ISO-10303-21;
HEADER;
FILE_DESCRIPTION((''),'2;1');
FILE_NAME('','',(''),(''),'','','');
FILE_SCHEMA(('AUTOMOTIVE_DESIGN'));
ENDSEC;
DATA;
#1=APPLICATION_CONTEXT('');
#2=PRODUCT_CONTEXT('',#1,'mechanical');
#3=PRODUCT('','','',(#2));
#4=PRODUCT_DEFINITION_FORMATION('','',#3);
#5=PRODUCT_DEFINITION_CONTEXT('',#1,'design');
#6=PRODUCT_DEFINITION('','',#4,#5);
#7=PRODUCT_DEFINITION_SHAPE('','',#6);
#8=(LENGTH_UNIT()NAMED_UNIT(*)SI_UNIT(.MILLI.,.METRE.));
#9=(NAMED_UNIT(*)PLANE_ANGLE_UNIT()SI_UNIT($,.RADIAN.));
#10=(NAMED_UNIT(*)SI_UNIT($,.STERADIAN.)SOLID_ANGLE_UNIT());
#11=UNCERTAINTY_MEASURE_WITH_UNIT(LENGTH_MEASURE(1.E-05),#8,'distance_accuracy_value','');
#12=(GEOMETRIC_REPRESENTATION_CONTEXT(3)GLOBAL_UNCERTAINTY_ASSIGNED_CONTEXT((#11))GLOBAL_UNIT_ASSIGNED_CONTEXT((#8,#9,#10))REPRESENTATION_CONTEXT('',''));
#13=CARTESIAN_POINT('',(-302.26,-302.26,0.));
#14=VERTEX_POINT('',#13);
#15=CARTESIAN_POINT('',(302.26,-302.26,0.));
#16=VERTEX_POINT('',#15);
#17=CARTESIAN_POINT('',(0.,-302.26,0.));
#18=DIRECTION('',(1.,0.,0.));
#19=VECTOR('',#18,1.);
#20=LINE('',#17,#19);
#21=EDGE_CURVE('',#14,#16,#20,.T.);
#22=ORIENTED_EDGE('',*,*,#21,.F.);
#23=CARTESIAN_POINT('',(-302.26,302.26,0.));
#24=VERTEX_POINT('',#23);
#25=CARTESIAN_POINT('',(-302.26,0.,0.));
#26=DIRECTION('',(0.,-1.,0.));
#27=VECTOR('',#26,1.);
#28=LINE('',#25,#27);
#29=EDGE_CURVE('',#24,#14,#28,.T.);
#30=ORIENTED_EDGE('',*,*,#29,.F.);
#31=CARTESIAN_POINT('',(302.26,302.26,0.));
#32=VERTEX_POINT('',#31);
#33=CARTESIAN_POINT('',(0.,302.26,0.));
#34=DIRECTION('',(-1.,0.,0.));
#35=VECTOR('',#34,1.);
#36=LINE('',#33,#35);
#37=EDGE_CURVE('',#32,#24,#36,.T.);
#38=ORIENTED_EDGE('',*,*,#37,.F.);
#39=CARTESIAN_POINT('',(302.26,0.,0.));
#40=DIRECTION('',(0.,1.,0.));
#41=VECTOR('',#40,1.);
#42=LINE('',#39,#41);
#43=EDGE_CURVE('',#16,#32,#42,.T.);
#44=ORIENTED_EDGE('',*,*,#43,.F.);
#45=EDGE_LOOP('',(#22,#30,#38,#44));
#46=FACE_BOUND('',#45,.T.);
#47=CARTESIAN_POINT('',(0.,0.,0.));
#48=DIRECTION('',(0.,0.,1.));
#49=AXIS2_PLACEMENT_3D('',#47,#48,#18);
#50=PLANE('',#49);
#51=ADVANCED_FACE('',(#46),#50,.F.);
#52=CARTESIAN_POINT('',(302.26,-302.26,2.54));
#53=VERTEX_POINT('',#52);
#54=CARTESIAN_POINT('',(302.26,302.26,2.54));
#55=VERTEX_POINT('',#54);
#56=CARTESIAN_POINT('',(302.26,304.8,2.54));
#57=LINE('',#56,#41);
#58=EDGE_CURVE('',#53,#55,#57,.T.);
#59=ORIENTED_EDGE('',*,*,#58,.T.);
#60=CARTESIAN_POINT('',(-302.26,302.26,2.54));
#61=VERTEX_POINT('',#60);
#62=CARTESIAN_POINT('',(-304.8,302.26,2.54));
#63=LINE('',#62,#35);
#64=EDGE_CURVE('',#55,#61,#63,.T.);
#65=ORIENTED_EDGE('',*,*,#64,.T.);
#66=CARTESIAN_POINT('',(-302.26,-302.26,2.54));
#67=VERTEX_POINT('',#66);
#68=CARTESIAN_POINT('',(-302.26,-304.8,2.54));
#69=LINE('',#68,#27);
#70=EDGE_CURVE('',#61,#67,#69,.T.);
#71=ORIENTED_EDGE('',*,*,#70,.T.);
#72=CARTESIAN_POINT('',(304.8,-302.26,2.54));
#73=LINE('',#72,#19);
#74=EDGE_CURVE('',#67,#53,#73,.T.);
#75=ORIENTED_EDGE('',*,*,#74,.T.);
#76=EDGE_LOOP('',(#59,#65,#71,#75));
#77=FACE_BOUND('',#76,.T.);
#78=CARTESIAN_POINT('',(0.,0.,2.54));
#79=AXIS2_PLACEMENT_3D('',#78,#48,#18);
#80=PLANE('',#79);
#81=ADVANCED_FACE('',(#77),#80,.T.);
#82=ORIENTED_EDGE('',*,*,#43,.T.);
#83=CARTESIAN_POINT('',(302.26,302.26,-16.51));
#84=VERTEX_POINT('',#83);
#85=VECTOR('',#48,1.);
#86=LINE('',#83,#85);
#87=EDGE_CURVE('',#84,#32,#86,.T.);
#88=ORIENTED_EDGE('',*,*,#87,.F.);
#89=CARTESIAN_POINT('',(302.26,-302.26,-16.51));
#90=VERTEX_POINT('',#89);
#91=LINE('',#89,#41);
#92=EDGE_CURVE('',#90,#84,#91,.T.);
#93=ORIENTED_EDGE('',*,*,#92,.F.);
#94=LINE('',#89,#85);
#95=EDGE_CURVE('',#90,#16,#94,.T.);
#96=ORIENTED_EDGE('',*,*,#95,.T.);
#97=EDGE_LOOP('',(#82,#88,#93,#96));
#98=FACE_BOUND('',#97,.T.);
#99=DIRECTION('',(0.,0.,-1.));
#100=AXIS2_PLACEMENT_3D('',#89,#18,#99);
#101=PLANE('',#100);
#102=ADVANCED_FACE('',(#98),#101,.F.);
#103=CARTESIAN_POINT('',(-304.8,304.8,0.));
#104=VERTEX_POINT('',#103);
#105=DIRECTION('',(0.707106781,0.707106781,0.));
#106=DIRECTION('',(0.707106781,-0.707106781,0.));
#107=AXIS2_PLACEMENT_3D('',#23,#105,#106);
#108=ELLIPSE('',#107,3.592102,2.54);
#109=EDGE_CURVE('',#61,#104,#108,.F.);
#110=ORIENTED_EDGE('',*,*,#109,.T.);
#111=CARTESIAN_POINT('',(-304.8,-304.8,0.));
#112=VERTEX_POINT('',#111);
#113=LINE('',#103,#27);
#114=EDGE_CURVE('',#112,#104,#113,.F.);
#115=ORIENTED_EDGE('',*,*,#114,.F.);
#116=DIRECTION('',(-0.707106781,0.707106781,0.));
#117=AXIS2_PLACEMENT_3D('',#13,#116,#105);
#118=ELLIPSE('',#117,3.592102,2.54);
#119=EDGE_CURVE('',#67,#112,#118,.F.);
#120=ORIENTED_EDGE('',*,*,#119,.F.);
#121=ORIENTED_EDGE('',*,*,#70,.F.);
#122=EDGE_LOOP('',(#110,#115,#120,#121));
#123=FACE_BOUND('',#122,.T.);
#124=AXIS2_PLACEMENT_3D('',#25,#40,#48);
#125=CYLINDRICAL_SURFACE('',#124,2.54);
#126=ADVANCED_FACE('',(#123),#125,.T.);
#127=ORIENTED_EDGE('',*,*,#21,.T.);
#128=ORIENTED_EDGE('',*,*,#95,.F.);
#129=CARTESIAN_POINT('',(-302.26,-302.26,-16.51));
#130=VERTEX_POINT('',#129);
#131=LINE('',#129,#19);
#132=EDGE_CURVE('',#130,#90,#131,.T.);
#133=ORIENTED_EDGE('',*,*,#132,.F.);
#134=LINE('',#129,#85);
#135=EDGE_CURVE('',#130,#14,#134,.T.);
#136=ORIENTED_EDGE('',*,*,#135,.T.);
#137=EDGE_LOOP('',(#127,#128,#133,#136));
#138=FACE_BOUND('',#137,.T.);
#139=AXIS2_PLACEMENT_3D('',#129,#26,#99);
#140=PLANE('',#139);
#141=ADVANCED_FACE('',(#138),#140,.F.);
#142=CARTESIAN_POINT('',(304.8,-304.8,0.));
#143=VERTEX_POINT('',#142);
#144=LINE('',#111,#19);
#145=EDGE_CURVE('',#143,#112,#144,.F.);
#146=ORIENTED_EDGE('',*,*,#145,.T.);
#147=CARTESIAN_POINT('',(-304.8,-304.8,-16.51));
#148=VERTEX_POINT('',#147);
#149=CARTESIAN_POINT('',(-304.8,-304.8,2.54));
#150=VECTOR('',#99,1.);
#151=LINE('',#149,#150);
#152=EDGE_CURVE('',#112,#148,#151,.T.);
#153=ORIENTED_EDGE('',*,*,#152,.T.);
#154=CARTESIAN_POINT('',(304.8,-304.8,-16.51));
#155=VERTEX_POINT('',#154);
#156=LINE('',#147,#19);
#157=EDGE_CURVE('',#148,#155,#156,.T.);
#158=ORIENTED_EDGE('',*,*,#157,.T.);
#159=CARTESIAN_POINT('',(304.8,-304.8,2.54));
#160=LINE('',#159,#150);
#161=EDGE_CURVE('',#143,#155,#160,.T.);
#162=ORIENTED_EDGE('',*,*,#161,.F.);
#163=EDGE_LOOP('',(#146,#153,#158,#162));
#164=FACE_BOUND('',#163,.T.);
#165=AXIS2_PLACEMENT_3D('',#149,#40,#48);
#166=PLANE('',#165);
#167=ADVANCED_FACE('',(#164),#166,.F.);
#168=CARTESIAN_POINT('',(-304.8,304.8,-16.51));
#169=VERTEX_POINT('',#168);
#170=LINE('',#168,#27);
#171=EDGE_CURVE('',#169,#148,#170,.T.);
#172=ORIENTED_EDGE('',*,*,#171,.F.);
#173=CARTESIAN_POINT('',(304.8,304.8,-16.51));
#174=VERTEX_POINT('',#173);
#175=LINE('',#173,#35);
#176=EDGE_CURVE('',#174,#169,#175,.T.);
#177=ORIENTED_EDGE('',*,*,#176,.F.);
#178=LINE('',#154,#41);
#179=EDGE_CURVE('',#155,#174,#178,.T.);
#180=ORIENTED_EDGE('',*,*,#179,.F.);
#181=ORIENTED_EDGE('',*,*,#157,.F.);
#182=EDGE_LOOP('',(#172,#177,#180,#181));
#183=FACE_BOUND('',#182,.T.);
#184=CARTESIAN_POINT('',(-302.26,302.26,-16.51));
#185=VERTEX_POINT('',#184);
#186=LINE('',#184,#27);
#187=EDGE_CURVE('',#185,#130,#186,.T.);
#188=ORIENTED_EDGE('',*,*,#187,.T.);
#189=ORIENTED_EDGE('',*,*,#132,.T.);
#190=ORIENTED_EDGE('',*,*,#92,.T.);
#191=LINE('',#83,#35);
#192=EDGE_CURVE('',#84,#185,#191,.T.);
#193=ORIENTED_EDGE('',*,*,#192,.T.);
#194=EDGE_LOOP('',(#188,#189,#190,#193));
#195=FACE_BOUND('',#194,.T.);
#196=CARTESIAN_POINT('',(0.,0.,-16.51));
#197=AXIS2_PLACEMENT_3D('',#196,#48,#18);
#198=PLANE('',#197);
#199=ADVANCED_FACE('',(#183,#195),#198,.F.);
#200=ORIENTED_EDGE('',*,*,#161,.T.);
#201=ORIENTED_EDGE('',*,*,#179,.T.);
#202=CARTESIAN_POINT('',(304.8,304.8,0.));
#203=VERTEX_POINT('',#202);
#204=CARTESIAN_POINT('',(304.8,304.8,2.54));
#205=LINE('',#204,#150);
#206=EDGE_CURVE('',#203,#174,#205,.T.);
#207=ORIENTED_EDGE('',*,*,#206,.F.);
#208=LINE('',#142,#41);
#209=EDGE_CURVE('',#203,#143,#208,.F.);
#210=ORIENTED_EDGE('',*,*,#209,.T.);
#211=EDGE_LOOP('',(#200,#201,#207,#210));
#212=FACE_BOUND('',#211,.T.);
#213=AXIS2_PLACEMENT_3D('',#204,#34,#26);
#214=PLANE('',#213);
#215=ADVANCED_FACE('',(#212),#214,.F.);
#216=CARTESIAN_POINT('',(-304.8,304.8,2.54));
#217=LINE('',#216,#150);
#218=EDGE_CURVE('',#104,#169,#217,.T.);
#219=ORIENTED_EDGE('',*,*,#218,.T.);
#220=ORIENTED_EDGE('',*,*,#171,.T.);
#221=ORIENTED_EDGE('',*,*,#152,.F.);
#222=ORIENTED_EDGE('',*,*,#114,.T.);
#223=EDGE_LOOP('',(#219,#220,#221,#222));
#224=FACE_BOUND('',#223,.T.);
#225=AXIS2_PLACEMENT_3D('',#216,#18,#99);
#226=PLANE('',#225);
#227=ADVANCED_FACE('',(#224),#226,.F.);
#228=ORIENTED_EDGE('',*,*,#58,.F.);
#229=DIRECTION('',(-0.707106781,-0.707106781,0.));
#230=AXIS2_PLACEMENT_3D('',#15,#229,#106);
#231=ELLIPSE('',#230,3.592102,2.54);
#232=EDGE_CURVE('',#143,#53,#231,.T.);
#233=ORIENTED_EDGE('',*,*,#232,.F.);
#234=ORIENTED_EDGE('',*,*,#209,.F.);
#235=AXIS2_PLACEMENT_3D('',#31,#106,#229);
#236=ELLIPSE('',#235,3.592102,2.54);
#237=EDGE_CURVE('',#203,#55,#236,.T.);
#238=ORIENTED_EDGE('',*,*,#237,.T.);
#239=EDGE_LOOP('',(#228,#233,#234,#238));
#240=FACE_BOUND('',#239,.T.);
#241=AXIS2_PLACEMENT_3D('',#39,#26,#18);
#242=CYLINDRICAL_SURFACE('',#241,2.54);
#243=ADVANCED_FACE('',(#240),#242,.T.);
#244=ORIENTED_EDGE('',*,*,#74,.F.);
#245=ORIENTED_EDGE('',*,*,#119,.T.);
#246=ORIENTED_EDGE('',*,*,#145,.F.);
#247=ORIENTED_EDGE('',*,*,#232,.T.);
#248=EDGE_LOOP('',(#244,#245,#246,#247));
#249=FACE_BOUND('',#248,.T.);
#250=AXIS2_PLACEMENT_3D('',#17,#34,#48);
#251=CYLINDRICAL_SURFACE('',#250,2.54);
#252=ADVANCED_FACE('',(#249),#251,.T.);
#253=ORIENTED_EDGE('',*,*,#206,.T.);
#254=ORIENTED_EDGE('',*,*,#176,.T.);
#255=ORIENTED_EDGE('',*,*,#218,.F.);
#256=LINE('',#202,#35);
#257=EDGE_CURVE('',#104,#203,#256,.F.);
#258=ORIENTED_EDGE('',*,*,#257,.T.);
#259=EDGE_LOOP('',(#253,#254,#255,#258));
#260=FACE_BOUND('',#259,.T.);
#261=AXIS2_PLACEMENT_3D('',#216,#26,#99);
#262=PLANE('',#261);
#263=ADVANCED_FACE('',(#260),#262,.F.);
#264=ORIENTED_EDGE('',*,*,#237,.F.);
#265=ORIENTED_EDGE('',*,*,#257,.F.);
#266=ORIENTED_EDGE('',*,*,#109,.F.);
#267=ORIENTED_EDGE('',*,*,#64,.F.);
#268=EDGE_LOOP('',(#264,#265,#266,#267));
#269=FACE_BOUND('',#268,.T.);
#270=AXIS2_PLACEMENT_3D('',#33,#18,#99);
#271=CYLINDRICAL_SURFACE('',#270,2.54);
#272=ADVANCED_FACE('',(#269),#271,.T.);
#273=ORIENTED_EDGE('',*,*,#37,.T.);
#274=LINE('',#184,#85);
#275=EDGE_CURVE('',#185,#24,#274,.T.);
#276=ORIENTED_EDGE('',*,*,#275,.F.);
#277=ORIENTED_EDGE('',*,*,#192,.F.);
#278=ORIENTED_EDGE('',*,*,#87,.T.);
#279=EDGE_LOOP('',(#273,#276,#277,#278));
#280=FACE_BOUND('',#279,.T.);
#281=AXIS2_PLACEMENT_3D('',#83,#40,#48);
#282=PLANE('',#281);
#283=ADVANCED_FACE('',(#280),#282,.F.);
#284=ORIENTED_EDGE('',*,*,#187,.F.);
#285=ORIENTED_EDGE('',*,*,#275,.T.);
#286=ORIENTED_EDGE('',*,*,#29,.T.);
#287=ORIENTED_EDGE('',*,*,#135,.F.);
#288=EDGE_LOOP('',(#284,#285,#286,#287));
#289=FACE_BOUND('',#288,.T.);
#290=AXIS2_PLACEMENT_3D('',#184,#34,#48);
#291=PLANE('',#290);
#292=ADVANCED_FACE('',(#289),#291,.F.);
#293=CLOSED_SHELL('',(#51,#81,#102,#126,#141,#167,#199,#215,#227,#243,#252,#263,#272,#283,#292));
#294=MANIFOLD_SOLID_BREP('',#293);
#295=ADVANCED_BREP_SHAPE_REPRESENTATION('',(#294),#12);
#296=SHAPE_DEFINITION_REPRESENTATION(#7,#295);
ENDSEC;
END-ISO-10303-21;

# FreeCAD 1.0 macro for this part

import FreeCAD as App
import Part
import Sketcher
from FreeCAD import Vector
Q = App.Units.Quantity


def edges_at(feature, points):
    """Names of the edges that pass closest to the given points."""
    edges = feature.Shape.Edges
    near = lambda p: min(range(len(edges)), key=lambda i: edges[i].distToShape(Part.Vertex(*p))[0])
    return sorted({f"Edge{near(p) + 1}" for p in points})


def add_polygon(sketch, points):
    """Adds a closed chain of lines whose ends are joined by coincident constraints."""
    first, n = sketch.GeometryCount, len(points)
    for a, b in zip(points, points[1:] + points[:1]):
        sketch.addGeometry(Part.LineSegment(App.Vector(*a, 0), App.Vector(*b, 0)), False)
    for i in range(n):
        sketch.addConstraint(Sketcher.Constraint("Coincident", first + i, 2, first + (i + 1) % n, 1))

doc = App.newDocument("Part")
params = doc.addObject("Spreadsheet::Sheet", "Params")
for row, (alias, value) in enumerate([
    ("sketch1_width", "24 in"),
    ("pad1_length", "0.1 in"),
    ("sketch2_width", "24 in"),
    ("sketch2_width2", "23.8 in"),
    ("pad2_length", "0.75 in"),
    ("fillet_radius", "0.1 in"),
], start=1):
    params.set(f"A{row}", alias)
    params.set(f"B{row}", "=" + value)
    params.setAlias(f"B{row}", alias)

body = doc.addObject("PartDesign::Body", "Body")

sketch1 = body.newObject("Sketcher::SketchObject", "Sketch")
sketch1.AttachmentSupport = (doc.getObject("XY_Plane"), [""])
sketch1.MapMode = "FlatFace"
add_polygon(sketch1, [(-305, 305), (-305, -305), (305, -305), (305, 305)])
sketch1.addConstraint([
    Sketcher.Constraint("Vertical", 0),
    Sketcher.Constraint("Horizontal", 1),
    Sketcher.Constraint("Vertical", 2),
    Sketcher.Constraint("Horizontal", 3),
    Sketcher.Constraint("Symmetric", 0, 2, 2, 2, -1, 1),
    Sketcher.Constraint("Equal", 3, 0),
    Sketcher.Constraint("DistanceX", 1, 1, 1, 2, Q("24 in")),
])
sketch1.setExpression("Constraints[10]", "Params.sketch1_width")
pad1 = body.newObject("PartDesign::Pad", "Pad")
pad1.Profile = sketch1
pad1.setExpression("Length", "Params.pad1_length")

sketch2 = body.newObject("Sketcher::SketchObject", "Sketch001")
sketch2.AttachmentSupport = (doc.getObject("XY_Plane"), [""])
sketch2.MapMode = "FlatFace"
sketch2.AttachmentOffset = App.Placement(Vector(0, 0, 0.1 * 25.4), App.Rotation())
add_polygon(sketch2, [(-305, 305), (-305, -305), (305, -305), (305, 305)])
add_polygon(sketch2, [(302, -302), (-302, -302), (-302, 302), (302, 302)])
sketch2.addConstraint([
    Sketcher.Constraint("Vertical", 0),
    Sketcher.Constraint("Horizontal", 1),
    Sketcher.Constraint("Vertical", 2),
    Sketcher.Constraint("Horizontal", 3),
    Sketcher.Constraint("Horizontal", 4),
    Sketcher.Constraint("Vertical", 5),
    Sketcher.Constraint("Horizontal", 6),
    Sketcher.Constraint("Vertical", 7),
    Sketcher.Constraint("Symmetric", 0, 2, 2, 2, -1, 1),
    Sketcher.Constraint("Symmetric", 4, 2, 6, 2, -1, 1),
    Sketcher.Constraint("Equal", 3, 0),
    Sketcher.Constraint("Equal", 6, 5),
    Sketcher.Constraint("DistanceX", 1, 1, 1, 2, Q("24 in")),
    Sketcher.Constraint("DistanceX", 4, 2, 4, 1, Q("23.8 in")),
])
sketch2.setExpression("Constraints[20]", "Params.sketch2_width")
sketch2.setExpression("Constraints[21]", "Params.sketch2_width2")
pad2 = body.newObject("PartDesign::Pad", "Pad001")
pad2.Profile = sketch2
pad2.setExpression("Length", "Params.pad2_length")
pad2.Reversed = True
doc.recompute()

fillet = body.newObject("PartDesign::Fillet", "Fillet")
fillet.Base = (pad2, edges_at(pad2, [
    (-304.8, 0, 2.54),
    (0, -304.8, 2.54),
    (304.8, 0, 2.54),
    (0, 304.8, 2.54),
]))
fillet.setExpression("Radius", "Params.fillet_radius")

doc.recompute()
